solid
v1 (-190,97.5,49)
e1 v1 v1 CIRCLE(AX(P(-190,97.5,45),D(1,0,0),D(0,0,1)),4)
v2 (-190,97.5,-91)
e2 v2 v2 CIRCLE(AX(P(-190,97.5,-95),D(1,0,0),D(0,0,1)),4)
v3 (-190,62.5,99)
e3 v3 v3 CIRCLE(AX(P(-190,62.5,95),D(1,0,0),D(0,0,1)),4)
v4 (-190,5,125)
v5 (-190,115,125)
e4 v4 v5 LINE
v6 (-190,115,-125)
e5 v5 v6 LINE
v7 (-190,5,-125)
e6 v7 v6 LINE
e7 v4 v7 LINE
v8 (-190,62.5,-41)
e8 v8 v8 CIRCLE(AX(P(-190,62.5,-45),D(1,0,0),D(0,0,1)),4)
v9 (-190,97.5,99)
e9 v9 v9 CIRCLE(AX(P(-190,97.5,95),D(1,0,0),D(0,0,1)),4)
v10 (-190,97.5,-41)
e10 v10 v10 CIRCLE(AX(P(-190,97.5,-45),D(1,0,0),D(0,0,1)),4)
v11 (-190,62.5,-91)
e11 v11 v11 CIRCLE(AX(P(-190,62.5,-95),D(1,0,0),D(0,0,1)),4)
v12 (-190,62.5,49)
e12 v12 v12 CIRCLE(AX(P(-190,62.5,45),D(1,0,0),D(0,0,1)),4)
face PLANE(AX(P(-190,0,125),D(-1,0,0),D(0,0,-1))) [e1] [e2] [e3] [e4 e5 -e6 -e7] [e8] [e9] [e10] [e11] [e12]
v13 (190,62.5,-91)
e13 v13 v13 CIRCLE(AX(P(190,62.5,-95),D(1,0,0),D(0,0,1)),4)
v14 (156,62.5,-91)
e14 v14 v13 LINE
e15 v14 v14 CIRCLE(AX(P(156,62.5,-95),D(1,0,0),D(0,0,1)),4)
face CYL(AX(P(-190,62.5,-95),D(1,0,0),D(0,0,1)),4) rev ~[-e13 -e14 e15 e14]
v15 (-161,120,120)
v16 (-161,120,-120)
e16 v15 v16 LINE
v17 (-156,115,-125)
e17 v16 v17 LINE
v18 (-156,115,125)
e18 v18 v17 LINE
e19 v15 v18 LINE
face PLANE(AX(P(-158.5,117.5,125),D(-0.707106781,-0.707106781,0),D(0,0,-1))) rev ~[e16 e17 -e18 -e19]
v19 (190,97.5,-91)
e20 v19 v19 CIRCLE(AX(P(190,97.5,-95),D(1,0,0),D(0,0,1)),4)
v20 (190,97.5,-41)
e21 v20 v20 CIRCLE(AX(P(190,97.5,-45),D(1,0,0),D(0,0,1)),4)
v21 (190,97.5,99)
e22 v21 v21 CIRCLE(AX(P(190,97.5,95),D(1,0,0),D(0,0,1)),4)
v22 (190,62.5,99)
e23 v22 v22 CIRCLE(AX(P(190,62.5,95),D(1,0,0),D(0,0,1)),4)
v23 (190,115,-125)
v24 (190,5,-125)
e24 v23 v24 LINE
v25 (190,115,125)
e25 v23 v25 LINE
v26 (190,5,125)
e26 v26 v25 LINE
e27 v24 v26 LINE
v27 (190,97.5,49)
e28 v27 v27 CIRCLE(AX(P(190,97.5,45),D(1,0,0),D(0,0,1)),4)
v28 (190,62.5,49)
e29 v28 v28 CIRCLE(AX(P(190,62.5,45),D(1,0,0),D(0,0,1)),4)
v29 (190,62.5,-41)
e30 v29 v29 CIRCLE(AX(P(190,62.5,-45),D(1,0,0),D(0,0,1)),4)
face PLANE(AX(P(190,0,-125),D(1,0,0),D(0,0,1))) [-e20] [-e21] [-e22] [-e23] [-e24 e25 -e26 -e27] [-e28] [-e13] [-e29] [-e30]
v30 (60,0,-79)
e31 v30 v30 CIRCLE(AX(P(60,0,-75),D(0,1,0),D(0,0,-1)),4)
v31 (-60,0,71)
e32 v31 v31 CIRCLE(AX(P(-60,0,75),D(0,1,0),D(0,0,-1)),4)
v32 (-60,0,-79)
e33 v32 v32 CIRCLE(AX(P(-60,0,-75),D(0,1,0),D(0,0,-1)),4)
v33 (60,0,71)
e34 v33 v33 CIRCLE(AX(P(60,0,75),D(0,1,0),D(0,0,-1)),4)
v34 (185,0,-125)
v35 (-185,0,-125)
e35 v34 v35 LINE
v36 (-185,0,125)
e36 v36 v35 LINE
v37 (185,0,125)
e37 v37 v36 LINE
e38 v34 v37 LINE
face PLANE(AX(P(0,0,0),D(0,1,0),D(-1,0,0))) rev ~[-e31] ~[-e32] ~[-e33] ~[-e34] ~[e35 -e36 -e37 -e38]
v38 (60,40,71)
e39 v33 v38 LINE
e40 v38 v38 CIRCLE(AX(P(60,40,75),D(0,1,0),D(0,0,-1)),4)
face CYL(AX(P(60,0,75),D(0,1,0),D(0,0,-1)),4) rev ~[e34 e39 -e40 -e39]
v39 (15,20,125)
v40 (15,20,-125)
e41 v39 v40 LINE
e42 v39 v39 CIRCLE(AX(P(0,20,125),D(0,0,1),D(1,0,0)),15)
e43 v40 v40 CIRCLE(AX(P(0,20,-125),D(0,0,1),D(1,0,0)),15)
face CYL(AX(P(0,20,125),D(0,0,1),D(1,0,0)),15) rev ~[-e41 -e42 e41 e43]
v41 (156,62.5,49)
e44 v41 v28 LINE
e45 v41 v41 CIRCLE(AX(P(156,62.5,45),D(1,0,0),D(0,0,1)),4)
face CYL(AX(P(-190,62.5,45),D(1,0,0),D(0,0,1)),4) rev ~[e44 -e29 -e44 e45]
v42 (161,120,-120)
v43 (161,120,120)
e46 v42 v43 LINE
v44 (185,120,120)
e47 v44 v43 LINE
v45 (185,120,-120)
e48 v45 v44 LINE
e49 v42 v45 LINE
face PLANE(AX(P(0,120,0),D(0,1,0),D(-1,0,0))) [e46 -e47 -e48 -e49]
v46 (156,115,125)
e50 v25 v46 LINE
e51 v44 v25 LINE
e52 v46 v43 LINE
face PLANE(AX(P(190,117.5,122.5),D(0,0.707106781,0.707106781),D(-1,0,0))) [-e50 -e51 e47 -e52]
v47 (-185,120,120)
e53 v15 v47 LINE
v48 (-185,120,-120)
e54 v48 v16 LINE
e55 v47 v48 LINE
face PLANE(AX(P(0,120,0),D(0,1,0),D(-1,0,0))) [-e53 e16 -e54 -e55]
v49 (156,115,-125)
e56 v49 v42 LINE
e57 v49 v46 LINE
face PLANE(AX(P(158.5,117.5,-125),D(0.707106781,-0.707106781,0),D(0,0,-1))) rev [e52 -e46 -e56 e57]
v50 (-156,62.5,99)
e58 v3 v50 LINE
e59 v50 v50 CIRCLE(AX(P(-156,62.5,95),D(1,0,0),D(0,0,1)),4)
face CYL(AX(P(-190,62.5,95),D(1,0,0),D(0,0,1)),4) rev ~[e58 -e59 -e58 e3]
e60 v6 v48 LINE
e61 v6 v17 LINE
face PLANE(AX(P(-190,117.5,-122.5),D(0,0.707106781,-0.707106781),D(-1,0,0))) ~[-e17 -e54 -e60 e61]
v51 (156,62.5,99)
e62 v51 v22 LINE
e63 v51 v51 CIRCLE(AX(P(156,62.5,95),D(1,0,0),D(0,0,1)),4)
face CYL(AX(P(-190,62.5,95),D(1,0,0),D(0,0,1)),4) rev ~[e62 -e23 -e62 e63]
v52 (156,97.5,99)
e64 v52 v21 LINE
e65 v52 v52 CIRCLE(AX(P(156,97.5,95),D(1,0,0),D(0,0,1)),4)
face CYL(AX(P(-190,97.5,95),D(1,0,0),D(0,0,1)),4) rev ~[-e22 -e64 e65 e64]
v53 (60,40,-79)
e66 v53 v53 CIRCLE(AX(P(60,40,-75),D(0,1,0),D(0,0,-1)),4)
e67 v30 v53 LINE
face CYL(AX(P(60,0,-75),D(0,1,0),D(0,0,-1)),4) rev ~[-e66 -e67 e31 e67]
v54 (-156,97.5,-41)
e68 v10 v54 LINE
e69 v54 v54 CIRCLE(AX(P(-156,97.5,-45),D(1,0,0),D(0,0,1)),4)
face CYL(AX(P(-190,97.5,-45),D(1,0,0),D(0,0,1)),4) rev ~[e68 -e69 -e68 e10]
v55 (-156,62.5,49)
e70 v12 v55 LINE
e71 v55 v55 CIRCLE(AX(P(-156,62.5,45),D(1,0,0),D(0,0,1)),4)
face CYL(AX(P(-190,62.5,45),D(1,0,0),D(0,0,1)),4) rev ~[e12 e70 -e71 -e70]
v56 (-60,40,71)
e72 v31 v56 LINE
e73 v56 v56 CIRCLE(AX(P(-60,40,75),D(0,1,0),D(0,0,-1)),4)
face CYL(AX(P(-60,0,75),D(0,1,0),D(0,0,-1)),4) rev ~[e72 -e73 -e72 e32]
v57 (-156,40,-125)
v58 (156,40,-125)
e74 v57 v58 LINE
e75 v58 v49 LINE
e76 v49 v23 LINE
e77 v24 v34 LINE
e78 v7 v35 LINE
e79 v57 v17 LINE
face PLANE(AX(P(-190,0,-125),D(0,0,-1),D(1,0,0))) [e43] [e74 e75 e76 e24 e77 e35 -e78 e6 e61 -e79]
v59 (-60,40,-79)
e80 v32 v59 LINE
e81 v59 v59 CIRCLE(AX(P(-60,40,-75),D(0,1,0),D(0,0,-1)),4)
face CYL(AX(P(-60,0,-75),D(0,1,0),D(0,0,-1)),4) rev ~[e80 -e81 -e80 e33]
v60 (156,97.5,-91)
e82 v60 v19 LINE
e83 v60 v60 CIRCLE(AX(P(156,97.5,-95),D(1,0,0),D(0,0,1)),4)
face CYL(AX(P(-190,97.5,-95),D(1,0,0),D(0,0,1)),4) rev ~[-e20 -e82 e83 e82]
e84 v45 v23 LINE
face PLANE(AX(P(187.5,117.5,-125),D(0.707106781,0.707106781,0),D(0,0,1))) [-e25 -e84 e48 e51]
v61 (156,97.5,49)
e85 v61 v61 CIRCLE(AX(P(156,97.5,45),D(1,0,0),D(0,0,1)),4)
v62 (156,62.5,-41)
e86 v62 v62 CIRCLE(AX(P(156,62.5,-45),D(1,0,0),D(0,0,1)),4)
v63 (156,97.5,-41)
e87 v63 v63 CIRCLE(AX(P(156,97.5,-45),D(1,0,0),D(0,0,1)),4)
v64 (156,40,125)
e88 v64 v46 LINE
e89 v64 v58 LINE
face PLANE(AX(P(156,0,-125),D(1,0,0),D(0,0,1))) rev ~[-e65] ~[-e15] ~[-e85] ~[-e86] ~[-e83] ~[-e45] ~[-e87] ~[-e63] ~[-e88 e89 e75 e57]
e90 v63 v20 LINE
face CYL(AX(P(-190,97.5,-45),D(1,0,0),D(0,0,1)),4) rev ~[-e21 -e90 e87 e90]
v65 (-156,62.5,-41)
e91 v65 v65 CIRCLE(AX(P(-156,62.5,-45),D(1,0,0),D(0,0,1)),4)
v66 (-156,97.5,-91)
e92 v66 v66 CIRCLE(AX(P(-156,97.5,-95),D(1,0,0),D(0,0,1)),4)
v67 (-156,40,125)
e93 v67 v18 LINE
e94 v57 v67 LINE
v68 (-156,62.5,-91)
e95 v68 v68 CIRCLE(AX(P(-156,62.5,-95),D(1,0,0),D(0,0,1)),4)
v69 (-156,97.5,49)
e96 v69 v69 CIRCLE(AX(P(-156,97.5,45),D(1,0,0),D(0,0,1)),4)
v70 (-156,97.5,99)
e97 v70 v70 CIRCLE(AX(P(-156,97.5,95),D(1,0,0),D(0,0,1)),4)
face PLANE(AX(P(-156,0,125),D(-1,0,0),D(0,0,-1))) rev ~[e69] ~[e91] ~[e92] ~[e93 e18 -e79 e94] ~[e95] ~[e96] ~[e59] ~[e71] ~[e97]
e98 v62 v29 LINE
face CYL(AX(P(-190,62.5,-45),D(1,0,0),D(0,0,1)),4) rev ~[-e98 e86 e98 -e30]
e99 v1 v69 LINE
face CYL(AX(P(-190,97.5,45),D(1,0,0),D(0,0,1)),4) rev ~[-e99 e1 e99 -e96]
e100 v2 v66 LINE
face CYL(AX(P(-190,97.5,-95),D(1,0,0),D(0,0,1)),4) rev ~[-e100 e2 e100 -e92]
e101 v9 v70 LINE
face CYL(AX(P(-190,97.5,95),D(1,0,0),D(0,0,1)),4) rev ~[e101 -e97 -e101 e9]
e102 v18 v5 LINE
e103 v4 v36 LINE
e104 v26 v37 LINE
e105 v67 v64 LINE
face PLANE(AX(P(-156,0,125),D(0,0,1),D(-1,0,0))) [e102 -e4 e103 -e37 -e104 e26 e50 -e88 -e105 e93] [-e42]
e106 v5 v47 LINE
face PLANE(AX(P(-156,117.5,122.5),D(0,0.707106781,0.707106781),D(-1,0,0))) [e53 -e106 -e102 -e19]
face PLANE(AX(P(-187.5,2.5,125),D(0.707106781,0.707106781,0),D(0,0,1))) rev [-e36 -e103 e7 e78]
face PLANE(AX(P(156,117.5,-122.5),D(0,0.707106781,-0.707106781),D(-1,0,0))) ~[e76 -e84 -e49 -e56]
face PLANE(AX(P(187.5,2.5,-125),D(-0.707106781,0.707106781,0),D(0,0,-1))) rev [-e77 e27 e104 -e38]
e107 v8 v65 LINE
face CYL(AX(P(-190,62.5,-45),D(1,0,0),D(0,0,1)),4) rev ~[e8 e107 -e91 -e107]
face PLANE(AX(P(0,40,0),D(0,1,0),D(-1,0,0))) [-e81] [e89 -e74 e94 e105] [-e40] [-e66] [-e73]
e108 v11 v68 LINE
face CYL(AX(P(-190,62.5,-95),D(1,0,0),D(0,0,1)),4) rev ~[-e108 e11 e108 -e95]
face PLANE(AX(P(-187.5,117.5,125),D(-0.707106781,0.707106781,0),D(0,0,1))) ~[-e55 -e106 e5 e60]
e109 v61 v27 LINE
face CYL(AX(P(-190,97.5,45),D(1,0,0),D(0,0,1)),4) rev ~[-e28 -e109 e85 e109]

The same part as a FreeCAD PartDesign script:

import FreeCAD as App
import Part
import Sketcher
from FreeCAD import Vector


def edges_at(feature, points):
    """Names of the edges that pass closest to the given points."""
    edges = feature.Shape.Edges
    near = lambda p: min(range(len(edges)), key=lambda i: edges[i].distToShape(Part.Vertex(*p))[0])
    return sorted({f"Edge{near(p) + 1}" for p in points})

doc = App.newDocument("Part")
body = doc.addObject("PartDesign::Body", "Body")

# Sketch on XZ plane
sketch1 = body.newObject("Sketcher::SketchObject", "Sketch")
sketch1.AttachmentSupport = (doc.getObject("XZ_Plane"), [""])
sketch1.MapMode = "FlatFace"
sketch1.addGeometry(Part.LineSegment(Vector(-190, -125, 0), Vector(-190, 125, 0)), False)
sketch1.addGeometry(Part.LineSegment(Vector(-190, 125, 0), Vector(190, 125, 0)), False)
sketch1.addGeometry(Part.LineSegment(Vector(190, 125, 0), Vector(190, -125, 0)), False)
sketch1.addGeometry(Part.LineSegment(Vector(190, -125, 0), Vector(-190, -125, 0)), False)
sketch1.addConstraint(Sketcher.Constraint("Coincident", 0, 2, 1, 1))
sketch1.addConstraint(Sketcher.Constraint("Coincident", 1, 2, 2, 1))
sketch1.addConstraint(Sketcher.Constraint("Coincident", 2, 2, 3, 1))
sketch1.addConstraint(Sketcher.Constraint("Coincident", 3, 2, 0, 1))
sketch1.addConstraint(Sketcher.Constraint("Vertical", 0))
sketch1.addConstraint(Sketcher.Constraint("Horizontal", 1))
sketch1.addConstraint(Sketcher.Constraint("Vertical", 2))
sketch1.addConstraint(Sketcher.Constraint("Horizontal", 3))
sketch1.addConstraint(Sketcher.Constraint("Symmetric", 0, 2, 2, 2, -1, 1))
sketch1.addConstraint(Sketcher.Constraint("DistanceX", 1, 1, 1, 2, 380.0))
sketch1.addConstraint(Sketcher.Constraint("DistanceY", 0, 1, 0, 2, 250.0))
pad1 = body.newObject("PartDesign::Pad", "Pad")
pad1.Profile = sketch1
pad1.Length = 40
pad1.Reversed = True

# Sketch on XZ plane
sketch2 = body.newObject("Sketcher::SketchObject", "Sketch001")
sketch2.AttachmentSupport = (doc.getObject("XZ_Plane"), [""])
sketch2.MapMode = "FlatFace"
sketch2.addGeometry(Part.Circle(Vector(-60, -75, 0), Vector(0, 0, 1), 4), False)
sketch2.addGeometry(Part.Circle(Vector(60, -75, 0), Vector(0, 0, 1), 4), False)
sketch2.addGeometry(Part.Circle(Vector(60, 75, 0), Vector(0, 0, 1), 4), False)
sketch2.addGeometry(Part.Circle(Vector(-60, 75, 0), Vector(0, 0, 1), 4), False)
sketch2.addConstraint(Sketcher.Constraint("Equal", 0, 1))
sketch2.addConstraint(Sketcher.Constraint("Equal", 1, 2))
sketch2.addConstraint(Sketcher.Constraint("Equal", 2, 3))
sketch2.addConstraint(Sketcher.Constraint("Symmetric", 0, 3, 2, 3, -1, 1))
sketch2.addConstraint(Sketcher.Constraint("Symmetric", 1, 3, 3, 3, -1, 1))
sketch2.addConstraint(Sketcher.Constraint("Symmetric", 0, 3, 1, 3, -2))
sketch2.addConstraint(Sketcher.Constraint("Diameter", 0, 8.0))
sketch2.addConstraint(Sketcher.Constraint("DistanceX", 0, 3, -1, 1, 60.0))
sketch2.addConstraint(Sketcher.Constraint("DistanceY", 0, 3, -1, 1, 75.0))
doc.recompute()
hole = body.newObject("PartDesign::Hole", "Hole")
hole.Profile = sketch2
hole.ThreadType = "None"
hole.Diameter = 8
hole.DepthType = "ThroughAll"

# Sketch on XY plane
sketch3 = body.newObject("Sketcher::SketchObject", "Sketch002")
sketch3.AttachmentSupport = (doc.getObject("XY_Plane"), [""])
sketch3.MapMode = "FlatFace"
sketch3.AttachmentOffset = App.Placement(Vector(0, 0, 125), App.Rotation())
sketch3.addGeometry(Part.Circle(Vector(0, 20, 0), Vector(0, 0, 1), 15), False)
sketch3.addConstraint(Sketcher.Constraint("PointOnObject", 0, 3, -2))
sketch3.addConstraint(Sketcher.Constraint("Diameter", 0, 30.0))
sketch3.addConstraint(Sketcher.Constraint("DistanceY", -1, 1, 0, 3, 20.0))
pocket1 = body.newObject("PartDesign::Pocket", "Pocket")
pocket1.Profile = sketch3
pocket1.Type = "ThroughAll"

# Sketch on XZ plane
sketch4 = body.newObject("Sketcher::SketchObject", "Sketch003")
sketch4.AttachmentSupport = (doc.getObject("XZ_Plane"), [""])
sketch4.MapMode = "FlatFace"
sketch4.addGeometry(Part.LineSegment(Vector(-156, -125, 0), Vector(-190, -125, 0)), False)
sketch4.addGeometry(Part.LineSegment(Vector(-190, -125, 0), Vector(-190, 125, 0)), False)
sketch4.addGeometry(Part.LineSegment(Vector(-190, 125, 0), Vector(-156, 125, 0)), False)
sketch4.addGeometry(Part.LineSegment(Vector(-156, 125, 0), Vector(-156, -125, 0)), False)
sketch4.addGeometry(Part.LineSegment(Vector(190, -125, 0), Vector(156, -125, 0)), False)
sketch4.addGeometry(Part.LineSegment(Vector(156, -125, 0), Vector(156, 125, 0)), False)
sketch4.addGeometry(Part.LineSegment(Vector(156, 125, 0), Vector(190, 125, 0)), False)
sketch4.addGeometry(Part.LineSegment(Vector(190, 125, 0), Vector(190, -125, 0)), False)
sketch4.addConstraint(Sketcher.Constraint("Coincident", 0, 2, 1, 1))
sketch4.addConstraint(Sketcher.Constraint("Coincident", 1, 2, 2, 1))
sketch4.addConstraint(Sketcher.Constraint("Coincident", 2, 2, 3, 1))
sketch4.addConstraint(Sketcher.Constraint("Coincident", 3, 2, 0, 1))
sketch4.addConstraint(Sketcher.Constraint("Coincident", 4, 2, 5, 1))
sketch4.addConstraint(Sketcher.Constraint("Coincident", 5, 2, 6, 1))
sketch4.addConstraint(Sketcher.Constraint("Coincident", 6, 2, 7, 1))
sketch4.addConstraint(Sketcher.Constraint("Coincident", 7, 2, 4, 1))
sketch4.addConstraint(Sketcher.Constraint("Horizontal", 0))
sketch4.addConstraint(Sketcher.Constraint("Vertical", 1))
sketch4.addConstraint(Sketcher.Constraint("Horizontal", 2))
sketch4.addConstraint(Sketcher.Constraint("Vertical", 3))
sketch4.addConstraint(Sketcher.Constraint("Horizontal", 4))
sketch4.addConstraint(Sketcher.Constraint("Vertical", 5))
sketch4.addConstraint(Sketcher.Constraint("Horizontal", 6))
sketch4.addConstraint(Sketcher.Constraint("Vertical", 7))
sketch4.addConstraint(Sketcher.Constraint("Symmetric", 2, 2, 4, 2, -1, 1))
sketch4.addConstraint(Sketcher.Constraint("Symmetric", 0, 2, 6, 2, -1, 1))
sketch4.addConstraint(Sketcher.Constraint("Horizontal", 3, 2, 4, 2))
sketch4.addConstraint(Sketcher.Constraint("DistanceY", 1, 1, 1, 2, 250.0))
sketch4.addConstraint(Sketcher.Constraint("DistanceX", 3, 2, 4, 2, 312.0))
sketch4.addConstraint(Sketcher.Constraint("DistanceX", 1, 2, 6, 2, 380.0))
pad2 = body.newObject("PartDesign::Pad", "Pad001")
pad2.Profile = sketch4
pad2.Length = 120
pad2.Reversed = True

# Sketch on YZ plane
sketch5 = body.newObject("Sketcher::SketchObject", "Sketch004")
sketch5.AttachmentSupport = (doc.getObject("YZ_Plane"), [""])
sketch5.MapMode = "FlatFace"
sketch5.AttachmentOffset = App.Placement(Vector(0, 0, -190), App.Rotation())
sketch5.addGeometry(Part.Circle(Vector(97.5, 45, 0), Vector(0, 0, 1), 4), False)
sketch5.addGeometry(Part.Circle(Vector(97.5, 95, 0), Vector(0, 0, 1), 4), False)
sketch5.addGeometry(Part.Circle(Vector(62.5, 95, 0), Vector(0, 0, 1), 4), False)
sketch5.addGeometry(Part.Circle(Vector(62.5, 45, 0), Vector(0, 0, 1), 4), False)
sketch5.addGeometry(Part.Circle(Vector(62.5, -45, 0), Vector(0, 0, 1), 4), False)
sketch5.addGeometry(Part.Circle(Vector(62.5, -95, 0), Vector(0, 0, 1), 4), False)
sketch5.addGeometry(Part.Circle(Vector(97.5, -95, 0), Vector(0, 0, 1), 4), False)
sketch5.addGeometry(Part.Circle(Vector(97.5, -45, 0), Vector(0, 0, 1), 4), False)
sketch5.addConstraint(Sketcher.Constraint("Equal", 0, 1))
sketch5.addConstraint(Sketcher.Constraint("Equal", 1, 2))
sketch5.addConstraint(Sketcher.Constraint("Equal", 2, 3))
sketch5.addConstraint(Sketcher.Constraint("Equal", 3, 4))
sketch5.addConstraint(Sketcher.Constraint("Equal", 4, 5))
sketch5.addConstraint(Sketcher.Constraint("Equal", 5, 6))
sketch5.addConstraint(Sketcher.Constraint("Equal", 6, 7))
sketch5.addConstraint(Sketcher.Constraint("Symmetric", 3, 3, 4, 3, -1))
sketch5.addConstraint(Sketcher.Constraint("Symmetric", 2, 3, 5, 3, -1))
sketch5.addConstraint(Sketcher.Constraint("Symmetric", 1, 3, 6, 3, -1))
sketch5.addConstraint(Sketcher.Constraint("Symmetric", 0, 3, 7, 3, -1))
sketch5.addConstraint(Sketcher.Constraint("Horizontal", 1, 3, 2, 3))
sketch5.addConstraint(Sketcher.Constraint("Horizontal", 0, 3, 3, 3))
sketch5.addConstraint(Sketcher.Constraint("Vertical", 0, 3, 1, 3))
sketch5.addConstraint(Sketcher.Constraint("Vertical", 2, 3, 3, 3))
sketch5.addConstraint(Sketcher.Constraint("Diameter", 0, 8.0))
sketch5.addConstraint(Sketcher.Constraint("DistanceY", -1, 1, 0, 3, 45.0))
sketch5.addConstraint(Sketcher.Constraint("DistanceY", -1, 1, 1, 3, 95.0))
sketch5.addConstraint(Sketcher.Constraint("DistanceX", 2, 3, 1, 3, 35.0))
sketch5.addConstraint(Sketcher.Constraint("DistanceX", -1, 1, 0, 3, 97.5))
doc.recompute()
hole2 = body.newObject("PartDesign::Hole", "Hole001")
hole2.Profile = sketch5
hole2.ThreadType = "None"
hole2.Diameter = 8
hole2.DepthType = "ThroughAll"
hole2.Reversed = True
doc.recompute()

chamfer = body.newObject("PartDesign::Chamfer", "Chamfer")
chamfer.Base = (hole2, edges_at(hole2, [
    (-190, 120, 0),
    (-173, 120, 125),
    (-156, 120, 0),
    (-173, 120, -125),
    (156, 120, 0),
    (190, 120, 0),
    (173, 120, -125),
    (173, 120, 125),
    (-190, 0, 0),
    (190, 0, 0),
]))
chamfer.Size = 5

doc.recompute()
